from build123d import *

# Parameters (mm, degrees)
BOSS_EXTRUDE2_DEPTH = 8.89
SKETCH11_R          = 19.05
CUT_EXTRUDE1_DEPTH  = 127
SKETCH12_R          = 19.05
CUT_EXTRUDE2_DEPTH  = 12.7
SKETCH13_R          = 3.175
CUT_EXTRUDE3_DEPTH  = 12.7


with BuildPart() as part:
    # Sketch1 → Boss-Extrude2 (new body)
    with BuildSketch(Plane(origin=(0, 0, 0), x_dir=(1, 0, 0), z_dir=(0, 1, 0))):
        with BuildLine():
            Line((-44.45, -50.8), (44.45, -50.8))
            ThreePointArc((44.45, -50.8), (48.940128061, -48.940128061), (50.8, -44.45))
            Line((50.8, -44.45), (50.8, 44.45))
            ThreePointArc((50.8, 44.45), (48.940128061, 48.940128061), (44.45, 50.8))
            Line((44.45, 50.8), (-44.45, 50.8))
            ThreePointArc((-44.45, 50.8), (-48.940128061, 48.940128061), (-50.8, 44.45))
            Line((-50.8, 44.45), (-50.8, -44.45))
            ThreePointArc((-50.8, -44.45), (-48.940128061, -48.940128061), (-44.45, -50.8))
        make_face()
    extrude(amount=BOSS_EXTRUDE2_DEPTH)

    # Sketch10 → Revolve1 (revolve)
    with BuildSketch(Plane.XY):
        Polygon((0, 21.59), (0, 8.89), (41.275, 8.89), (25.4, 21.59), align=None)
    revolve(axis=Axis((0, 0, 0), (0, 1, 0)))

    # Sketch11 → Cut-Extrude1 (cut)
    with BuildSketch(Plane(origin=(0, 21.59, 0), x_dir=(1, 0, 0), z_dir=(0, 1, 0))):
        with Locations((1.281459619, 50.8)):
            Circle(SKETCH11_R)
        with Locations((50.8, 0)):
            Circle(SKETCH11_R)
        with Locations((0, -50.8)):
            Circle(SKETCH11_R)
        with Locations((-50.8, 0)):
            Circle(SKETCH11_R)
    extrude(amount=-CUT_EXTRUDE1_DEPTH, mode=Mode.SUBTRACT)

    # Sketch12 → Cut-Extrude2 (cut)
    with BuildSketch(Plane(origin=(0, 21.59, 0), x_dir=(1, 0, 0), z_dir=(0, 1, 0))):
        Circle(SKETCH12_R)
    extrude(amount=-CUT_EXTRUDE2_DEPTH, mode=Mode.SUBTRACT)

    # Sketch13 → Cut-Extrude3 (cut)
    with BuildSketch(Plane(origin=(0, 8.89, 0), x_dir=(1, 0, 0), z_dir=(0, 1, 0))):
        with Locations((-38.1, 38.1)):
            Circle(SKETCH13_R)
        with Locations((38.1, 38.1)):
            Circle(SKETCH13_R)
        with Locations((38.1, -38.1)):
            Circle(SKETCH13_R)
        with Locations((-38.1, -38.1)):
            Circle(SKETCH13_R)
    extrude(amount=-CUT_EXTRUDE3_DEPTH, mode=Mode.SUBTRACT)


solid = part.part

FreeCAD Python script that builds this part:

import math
import FreeCAD as App
import Part
import Sketcher

V = App.Vector
Q = App.Units.Quantity


def add_polygon(sketch, points):
    """Adds a closed chain of lines whose ends are joined by coincident constraints."""
    first, n = sketch.GeometryCount, len(points)
    for a, b in zip(points, points[1:] + points[:1]):
        sketch.addGeometry(Part.LineSegment(App.Vector(*a, 0), App.Vector(*b, 0)), False)
    for i in range(n):
        sketch.addConstraint(Sketcher.Constraint("Coincident", first + i, 2, first + (i + 1) % n, 1))

doc = App.newDocument("Part")
params = doc.addObject("Spreadsheet::Sheet", "Params")
for row, (alias, value) in enumerate([
    ("sketch1_radius", "0.25 in"),
    ("sketch1_width", "3.5 in"),
    ("pad1_length", "0.35 in"),
    ("sketch2_width", "1 in"),
    ("sketch2_height", "0.5 in"),
    ("sketch2_width2", "1.625 in"),
    ("revolution_angle", "360 deg"),
    ("sketch3_diameter", "1.5 in"),
    ("pocket1_length", "5 in"),
    ("sketch4_diameter", "1.5 in"),
    ("pocket2_length", "0.5 in"),
    ("sketch5_diameter", "0.25 in"),
    ("pocket3_length", "0.5 in"),
], start=1):
    params.set(f"A{row}", alias)
    params.set(f"B{row}", "=" + value)
    params.setAlias(f"B{row}", alias)

body = doc.addObject("PartDesign::Body", "Body")

# Sketch on XZ plane
sketch1 = doc.addObject("Sketcher::SketchObject", "Sketch")
body.addObject(sketch1)
sketch1.AttachmentSupport = (doc.XZ_Plane, [""])
sketch1.MapMode = "FlatFace"
sketch1.addGeometry([
    Part.LineSegment(V(-44, 51, 0), V(44, 51, 0)),  # 0
    Part.ArcOfCircle(Part.Circle(V(44, 44, 0), V(0, 0, 1), 6), math.radians(0), math.radians(90)),  # 1
    Part.LineSegment(V(51, 44, 0), V(51, -44, 0)),  # 2
    Part.ArcOfCircle(Part.Circle(V(44, -44, 0), V(0, 0, 1), 6), math.radians(-90), math.radians(0)),  # 3
    Part.LineSegment(V(44, -51, 0), V(-44, -51, 0)),  # 4
    Part.ArcOfCircle(Part.Circle(V(-44, -44, 0), V(0, 0, 1), 6), math.radians(180), math.radians(270)),  # 5
    Part.LineSegment(V(-51, -44, 0), V(-51, 44, 0)),  # 6
    Part.ArcOfCircle(Part.Circle(V(-44, 44, 0), V(0, 0, 1), 6), math.radians(90), math.radians(180)),  # 7
], False)
sketch1.addConstraint([
    Sketcher.Constraint("Tangent", 0, 2, 1, 2),
    Sketcher.Constraint("Tangent", 1, 1, 2, 1),
    Sketcher.Constraint("Tangent", 2, 2, 3, 2),
    Sketcher.Constraint("Tangent", 3, 1, 4, 1),
    Sketcher.Constraint("Tangent", 4, 2, 5, 2),
    Sketcher.Constraint("Tangent", 5, 1, 6, 1),
    Sketcher.Constraint("Tangent", 6, 2, 7, 2),
    Sketcher.Constraint("Tangent", 7, 1, 0, 1),
    Sketcher.Constraint("Horizontal", 0),
    Sketcher.Constraint("Vertical", 2),
    Sketcher.Constraint("Horizontal", 4),
    Sketcher.Constraint("Vertical", 6),
    Sketcher.Constraint("Equal", 1, 3),
    Sketcher.Constraint("Equal", 3, 5),
    Sketcher.Constraint("Equal", 5, 7),
    Sketcher.Constraint("Symmetric", 1, 3, 5, 3, -1, 1),
    Sketcher.Constraint("Equal", 4, 2),
    Sketcher.Constraint("Radius", 1, Q("0.25 in")),
    Sketcher.Constraint("DistanceX", 0, 1, 0, 2, Q("3.5 in")),
])
sketch1.setExpression("Constraints[17]", "Params.sketch1_radius")
sketch1.setExpression("Constraints[18]", "Params.sketch1_width")
pad1 = doc.addObject("PartDesign::Pad", "Pad")
body.addObject(pad1)
pad1.Profile = sketch1
pad1.setExpression("Length", "Params.pad1_length")
pad1.Reversed = True

# Sketch on XY plane
sketch2 = doc.addObject("Sketcher::SketchObject", "Sketch001")
body.addObject(sketch2)
sketch2.AttachmentSupport = (doc.XY_Plane, [""])
sketch2.MapMode = "FlatFace"
add_polygon(sketch2, [(0, 22), (0, 9), (41, 9), (25, 22)])  # lines 0-3
sketch2.addConstraint([
    Sketcher.Constraint("Vertical", 0),
    Sketcher.Constraint("Horizontal", 1),
    Sketcher.Constraint("Horizontal", 3),
    Sketcher.Constraint("PointOnObject", 0, 2, -2),
    Sketcher.Constraint("DistanceX", 3, 2, 3, 1, Q("1 in")),
    Sketcher.Constraint("DistanceY", 0, 2, 0, 1, Q("0.5 in")),
    Sketcher.Constraint("DistanceX", 1, 1, 1, 2, Q("1.625 in")),
    Sketcher.Constraint("DistanceY", -1, 1, 0, 2, Q("0.35 in")),
])
sketch2.setExpression("Constraints[8]", "Params.sketch2_width")
sketch2.setExpression("Constraints[9]", "Params.sketch2_height")
sketch2.setExpression("Constraints[10]", "Params.sketch2_width2")
revolution = doc.addObject("PartDesign::Revolution", "Revolution")
body.addObject(revolution)
revolution.Profile = sketch2
revolution.ReferenceAxis = (sketch2, ["V_Axis"])
revolution.setExpression("Angle", "Params.revolution_angle")

# Sketch on XZ plane
sketch3 = doc.addObject("Sketcher::SketchObject", "Sketch002")
body.addObject(sketch3)
sketch3.AttachmentSupport = (doc.XZ_Plane, [""])
sketch3.MapMode = "FlatFace"
sketch3.AttachmentOffset = App.Placement(V(0, 0, -0.85 * 25.4), App.Rotation())
sketch3.addGeometry([
    Part.Circle(V(1, -51, 0), V(0, 0, 1), 19),
    Part.Circle(V(51, 0, 0), V(0, 0, 1), 19),
    Part.Circle(V(0, 51, 0), V(0, 0, 1), 19),
    Part.Circle(V(-51, 0, 0), V(0, 0, 1), 19),
], False)
sketch3.addConstraint([
    Sketcher.Constraint("Equal", 0, 1),
    Sketcher.Constraint("Equal", 1, 2),
    Sketcher.Constraint("Equal", 2, 3),
    Sketcher.Constraint("Symmetric", 1, 3, 3, 3, -1, 1),
    Sketcher.Constraint("PointOnObject", 1, 3, -1),
    Sketcher.Constraint("PointOnObject", 2, 3, -2),
    Sketcher.Constraint("Diameter", 0, Q("1.5 in")),
    Sketcher.Constraint("DistanceY", 0, 3, -1, 1, Q("2 in")),
    Sketcher.Constraint("DistanceX", -1, 1, 1, 3, Q("2 in")),
    Sketcher.Constraint("DistanceY", -1, 1, 2, 3, Q("2 in")),
    Sketcher.Constraint("DistanceX", -1, 1, 0, 3, 1.28146),
])
sketch3.setExpression("Constraints[6]", "Params.sketch3_diameter")
pocket1 = doc.addObject("PartDesign::Pocket", "Pocket")
body.addObject(pocket1)
pocket1.Profile = sketch3
pocket1.setExpression("Length", "Params.pocket1_length")
pocket1.Reversed = True

# Sketch on XZ plane
sketch4 = doc.addObject("Sketcher::SketchObject", "Sketch003")
body.addObject(sketch4)
sketch4.AttachmentSupport = (doc.XZ_Plane, [""])
sketch4.MapMode = "FlatFace"
sketch4.AttachmentOffset = App.Placement(V(0, 0, -0.85 * 25.4), App.Rotation())
sketch4.addGeometry(Part.Circle(V(0, 0, 0), V(0, 0, 1), 19), False)
sketch4.addConstraint([
    Sketcher.Constraint("Coincident", 0, 3, -1, 1),
    Sketcher.Constraint("Diameter", 0, Q("1.5 in")),
])
sketch4.setExpression("Constraints[1]", "Params.sketch4_diameter")
pocket2 = doc.addObject("PartDesign::Pocket", "Pocket001")
body.addObject(pocket2)
pocket2.Profile = sketch4
pocket2.setExpression("Length", "Params.pocket2_length")
pocket2.Reversed = True

# Sketch on XZ plane
sketch5 = doc.addObject("Sketcher::SketchObject", "Sketch004")
body.addObject(sketch5)
sketch5.AttachmentSupport = (doc.XZ_Plane, [""])
sketch5.MapMode = "FlatFace"
sketch5.AttachmentOffset = App.Placement(V(0, 0, -0.35 * 25.4), App.Rotation())
sketch5.addGeometry([
    Part.Circle(V(-38.1, -38.1, 0), V(0, 0, 1), 3.2),
    Part.Circle(V(38.1, -38.1, 0), V(0, 0, 1), 3.2),
    Part.Circle(V(38.1, 38.1, 0), V(0, 0, 1), 3.2),
    Part.Circle(V(-38.1, 38.1, 0), V(0, 0, 1), 3.2),
], False)
sketch5.addConstraint([
    Sketcher.Constraint("Equal", 0, 1),
    Sketcher.Constraint("Equal", 1, 2),
    Sketcher.Constraint("Equal", 2, 3),
    Sketcher.Constraint("Symmetric", 0, 3, 2, 3, -1, 1),
    Sketcher.Constraint("Symmetric", 1, 3, 3, 3, -1, 1),
    Sketcher.Constraint("Symmetric", 0, 3, 1, 3, -2),
    Sketcher.Constraint("Diameter", 0, Q("0.25 in")),
    Sketcher.Constraint("DistanceX", 0, 3, 1, 3, Q("3 in")),
    Sketcher.Constraint("DistanceY", 1, 3, 2, 3, Q("3 in")),
])
sketch5.setExpression("Constraints[6]", "Params.sketch5_diameter")
pocket3 = doc.addObject("PartDesign::Pocket", "Pocket002")
body.addObject(pocket3)
pocket3.Profile = sketch5
pocket3.setExpression("Length", "Params.pocket3_length")
pocket3.Reversed = True

doc.recompute()
